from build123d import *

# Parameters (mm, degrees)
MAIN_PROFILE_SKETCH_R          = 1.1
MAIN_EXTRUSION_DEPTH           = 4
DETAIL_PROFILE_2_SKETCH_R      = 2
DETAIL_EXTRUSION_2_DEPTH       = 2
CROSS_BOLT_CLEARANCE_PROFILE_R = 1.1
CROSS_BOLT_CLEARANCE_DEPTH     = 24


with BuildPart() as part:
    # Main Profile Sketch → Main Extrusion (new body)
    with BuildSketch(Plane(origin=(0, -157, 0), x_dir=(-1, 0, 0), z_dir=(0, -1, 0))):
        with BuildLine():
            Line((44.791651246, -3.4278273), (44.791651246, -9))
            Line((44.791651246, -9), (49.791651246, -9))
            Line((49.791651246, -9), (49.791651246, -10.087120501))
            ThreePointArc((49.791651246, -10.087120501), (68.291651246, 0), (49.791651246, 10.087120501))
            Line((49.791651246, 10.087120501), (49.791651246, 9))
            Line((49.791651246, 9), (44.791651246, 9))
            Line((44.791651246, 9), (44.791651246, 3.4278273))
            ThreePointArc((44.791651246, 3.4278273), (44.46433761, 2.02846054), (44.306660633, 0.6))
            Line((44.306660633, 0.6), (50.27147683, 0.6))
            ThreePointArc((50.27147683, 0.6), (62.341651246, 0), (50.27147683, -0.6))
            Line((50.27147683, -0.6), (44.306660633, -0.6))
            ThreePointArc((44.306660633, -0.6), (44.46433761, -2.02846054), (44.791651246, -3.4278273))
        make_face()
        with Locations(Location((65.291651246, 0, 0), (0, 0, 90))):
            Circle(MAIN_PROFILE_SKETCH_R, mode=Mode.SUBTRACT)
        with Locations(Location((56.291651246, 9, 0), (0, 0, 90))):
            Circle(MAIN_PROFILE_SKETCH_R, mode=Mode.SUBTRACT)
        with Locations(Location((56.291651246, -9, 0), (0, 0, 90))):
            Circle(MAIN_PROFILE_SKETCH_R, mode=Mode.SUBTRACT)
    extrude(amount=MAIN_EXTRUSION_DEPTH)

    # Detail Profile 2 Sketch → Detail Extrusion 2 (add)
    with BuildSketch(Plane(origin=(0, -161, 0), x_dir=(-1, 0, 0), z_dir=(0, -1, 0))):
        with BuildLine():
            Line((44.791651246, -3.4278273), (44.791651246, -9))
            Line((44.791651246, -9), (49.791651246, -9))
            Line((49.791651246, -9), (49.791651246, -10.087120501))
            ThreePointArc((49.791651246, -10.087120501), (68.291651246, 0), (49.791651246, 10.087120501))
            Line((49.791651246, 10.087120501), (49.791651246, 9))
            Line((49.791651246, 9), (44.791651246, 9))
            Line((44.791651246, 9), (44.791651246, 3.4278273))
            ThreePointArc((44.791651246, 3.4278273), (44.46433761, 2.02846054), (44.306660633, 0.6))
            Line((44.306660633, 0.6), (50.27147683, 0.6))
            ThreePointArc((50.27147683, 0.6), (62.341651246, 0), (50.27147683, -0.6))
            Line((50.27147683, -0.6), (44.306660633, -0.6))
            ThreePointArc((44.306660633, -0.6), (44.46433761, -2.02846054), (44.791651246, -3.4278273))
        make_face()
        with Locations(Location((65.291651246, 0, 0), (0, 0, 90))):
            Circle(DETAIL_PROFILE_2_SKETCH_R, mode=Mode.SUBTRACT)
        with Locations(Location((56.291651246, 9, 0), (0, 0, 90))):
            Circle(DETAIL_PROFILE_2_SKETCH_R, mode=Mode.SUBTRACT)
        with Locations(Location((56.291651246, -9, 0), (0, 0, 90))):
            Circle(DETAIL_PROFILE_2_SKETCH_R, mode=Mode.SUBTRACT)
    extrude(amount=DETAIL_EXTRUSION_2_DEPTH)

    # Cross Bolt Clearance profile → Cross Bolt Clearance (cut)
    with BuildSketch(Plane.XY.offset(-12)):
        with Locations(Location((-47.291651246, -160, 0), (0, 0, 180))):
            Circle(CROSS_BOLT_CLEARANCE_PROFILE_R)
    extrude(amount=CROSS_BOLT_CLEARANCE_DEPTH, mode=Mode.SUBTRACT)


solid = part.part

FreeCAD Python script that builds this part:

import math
import FreeCAD as App
import Part
import Sketcher
from FreeCAD import Vector
Q = App.Units.Quantity

doc = App.newDocument("Part")
params = doc.addObject("Spreadsheet::Sheet", "Params")
for row, (alias, value) in enumerate([
    ("sketch1_radius", "12 mm"),
    ("sketch1_diameter", "2.2 mm"),
    ("sketch1_width", "5 mm"),
    ("sketch1_radius2", "6.05 mm"),
    ("pad1_length", "4 mm"),
    ("sketch2_diameter", "4 mm"),
    ("sketch2_radius", "12 mm"),
    ("sketch2_width", "5 mm"),
    ("sketch2_radius2", "6.05 mm"),
    ("pad2_length", "2 mm"),
    ("sketch3_diameter", "2.2 mm"),
    ("pocket1_length", "24 mm"),
], start=1):
    params.set(f"A{row}", alias)
    params.set(f"B{row}", "=" + value)
    params.setAlias(f"B{row}", alias)

body = doc.addObject("PartDesign::Body", "Body")

sketch1 = doc.addObject("Sketcher::SketchObject", "Sketch")
body.addObject(sketch1)
sketch1.AttachmentSupport = (doc.XZ_Plane, [""])
sketch1.MapMode = "FlatFace"
sketch1.AttachmentOffset = App.Placement(Vector(0, 0, 157), App.Rotation())
sketch1.addGeometry(Part.LineSegment(Vector(-44.8, 3.4, 0), Vector(-44.8, 9, 0)), False)
sketch1.addGeometry(Part.LineSegment(Vector(-44.8, 9, 0), Vector(-49.8, 9, 0)), False)
sketch1.addGeometry(Part.LineSegment(Vector(-49.8, 9, 0), Vector(-49.8, 10.1, 0)), False)
sketch1.addGeometry(Part.ArcOfCircle(Part.Circle(Vector(-56.3, 0, 0), Vector(0, 0, 1), 12), math.radians(57), math.radians(303)), False)
sketch1.addGeometry(Part.LineSegment(Vector(-49.8, -10.1, 0), Vector(-49.8, -9, 0)), False)
sketch1.addGeometry(Part.LineSegment(Vector(-49.8, -9, 0), Vector(-44.8, -9, 0)), False)
sketch1.addGeometry(Part.LineSegment(Vector(-44.8, -9, 0), Vector(-44.8, -3.4, 0)), False)
sketch1.addGeometry(Part.ArcOfCircle(Part.Circle(Vector(-56.3, 0, 0), Vector(0, 0, 1), 12), math.radians(-16.6), math.radians(-2.87)), False)
sketch1.addGeometry(Part.LineSegment(Vector(-44.3, -0.6, 0), Vector(-50.3, -0.6, 0)), False)
sketch1.addGeometry(Part.ArcOfCircle(Part.Circle(Vector(-56.3, 0, 0), Vector(0, 0, 1), 6), math.radians(6), math.radians(354)), False)
sketch1.addGeometry(Part.LineSegment(Vector(-50.3, 0.6, 0), Vector(-44.3, 0.6, 0)), False)
sketch1.addGeometry(Part.ArcOfCircle(Part.Circle(Vector(-56.3, 0, 0), Vector(0, 0, 1), 12), math.radians(2.87), math.radians(16.6)), False)
sketch1.addGeometry(Part.Circle(Vector(-56.3, 9, 0), Vector(0, 0, 1), 1.1), False)
sketch1.addGeometry(Part.Circle(Vector(-56.3, -9, 0), Vector(0, 0, 1), 1.1), False)
sketch1.addGeometry(Part.Circle(Vector(-65.3, 0, 0), Vector(0, 0, 1), 1.1), False)
sketch1.addConstraint(Sketcher.Constraint("Coincident", 0, 2, 1, 1))
sketch1.addConstraint(Sketcher.Constraint("Coincident", 1, 2, 2, 1))
sketch1.addConstraint(Sketcher.Constraint("Coincident", 2, 2, 3, 1))
sketch1.addConstraint(Sketcher.Constraint("Coincident", 3, 2, 4, 1))
sketch1.addConstraint(Sketcher.Constraint("Coincident", 4, 2, 5, 1))
sketch1.addConstraint(Sketcher.Constraint("Coincident", 5, 2, 6, 1))
sketch1.addConstraint(Sketcher.Constraint("Coincident", 6, 2, 7, 1))
sketch1.addConstraint(Sketcher.Constraint("Coincident", 7, 2, 8, 1))
sketch1.addConstraint(Sketcher.Constraint("Coincident", 8, 2, 9, 2))
sketch1.addConstraint(Sketcher.Constraint("Coincident", 9, 1, 10, 1))
sketch1.addConstraint(Sketcher.Constraint("Coincident", 10, 2, 11, 1))
sketch1.addConstraint(Sketcher.Constraint("Coincident", 11, 2, 0, 1))
sketch1.addConstraint(Sketcher.Constraint("Vertical", 0))
sketch1.addConstraint(Sketcher.Constraint("Horizontal", 1))
sketch1.addConstraint(Sketcher.Constraint("Vertical", 2))
sketch1.addConstraint(Sketcher.Constraint("Vertical", 4))
sketch1.addConstraint(Sketcher.Constraint("Horizontal", 5))
sketch1.addConstraint(Sketcher.Constraint("Vertical", 6))
sketch1.addConstraint(Sketcher.Constraint("Horizontal", 8))
sketch1.addConstraint(Sketcher.Constraint("Horizontal", 10))
sketch1.addConstraint(Sketcher.Constraint("Coincident", 7, 3, 3, 3))
sketch1.addConstraint(Sketcher.Constraint("Coincident", 9, 3, 3, 3))
sketch1.addConstraint(Sketcher.Constraint("Coincident", 11, 3, 3, 3))
sketch1.addConstraint(Sketcher.Constraint("Equal", 3, 7))
sketch1.addConstraint(Sketcher.Constraint("Equal", 7, 11))
sketch1.addConstraint(Sketcher.Constraint("Equal", 12, 13))
sketch1.addConstraint(Sketcher.Constraint("Equal", 13, 14))
sketch1.addConstraint(Sketcher.Constraint("Symmetric", 12, 3, 13, 3, -1))
sketch1.addConstraint(Sketcher.Constraint("Symmetric", 2, 2, 3, 2, -1))
sketch1.addConstraint(Sketcher.Constraint("Symmetric", 0, 2, 5, 2, -1))
sketch1.addConstraint(Sketcher.Constraint("PointOnObject", 14, 3, -1))
sketch1.addConstraint(Sketcher.Constraint("Horizontal", 12, 3, 0, 2))
sketch1.addConstraint(Sketcher.Constraint("Vertical", 11, 3, 12, 3))
sketch1.addConstraint(Sketcher.Constraint("Vertical", 8, 2, 9, 1))
sketch1.addConstraint(Sketcher.Constraint("Radius", 3, Q("12 mm")))
sketch1.addConstraint(Sketcher.Constraint("Diameter", 12, Q("2.2 mm")))
sketch1.addConstraint(Sketcher.Constraint("DistanceX", 1, 2, 1, 1, Q("5 mm")))
sketch1.addConstraint(Sketcher.Constraint("Radius", 9, Q("6.05 mm")))
sketch1.addConstraint(Sketcher.Constraint("DistanceY", -1, 1, 12, 3, Q("9 mm")))
sketch1.addConstraint(Sketcher.Constraint("DistanceX", 14, 3, 3, 3, Q("9 mm")))
sketch1.addConstraint(Sketcher.Constraint("DistanceY", 7, 2, -1, 1, Q("0.6 mm")))
sketch1.addConstraint(Sketcher.Constraint("DistanceX", 12, 3, 0, 2, Q("11.5 mm")))
sketch1.addConstraint(Sketcher.Constraint("DistanceX", 3, 3, -1, 1, Q("56.291651 mm")))
sketch1.setExpression("Constraints[34]", "Params.sketch1_radius")
sketch1.setExpression("Constraints[35]", "Params.sketch1_diameter")
sketch1.setExpression("Constraints[36]", "Params.sketch1_width")
sketch1.setExpression("Constraints[37]", "Params.sketch1_radius2")
pad1 = doc.addObject("PartDesign::Pad", "Pad")
body.addObject(pad1)
pad1.Profile = sketch1
pad1.setExpression("Length", "Params.pad1_length")

sketch2 = doc.addObject("Sketcher::SketchObject", "Sketch001")
body.addObject(sketch2)
sketch2.AttachmentSupport = (doc.XZ_Plane, [""])
sketch2.MapMode = "FlatFace"
sketch2.AttachmentOffset = App.Placement(Vector(0, 0, 161), App.Rotation())
sketch2.addGeometry(Part.LineSegment(Vector(-44.8, 3.4, 0), Vector(-44.8, 9, 0)), False)
sketch2.addGeometry(Part.LineSegment(Vector(-44.8, 9, 0), Vector(-49.8, 9, 0)), False)
sketch2.addGeometry(Part.LineSegment(Vector(-49.8, 9, 0), Vector(-49.8, 10.1, 0)), False)
sketch2.addGeometry(Part.ArcOfCircle(Part.Circle(Vector(-56.3, 0, 0), Vector(0, 0, 1), 12), math.radians(57), math.radians(303)), False)
sketch2.addGeometry(Part.LineSegment(Vector(-49.8, -10.1, 0), Vector(-49.8, -9, 0)), False)
sketch2.addGeometry(Part.LineSegment(Vector(-49.8, -9, 0), Vector(-44.8, -9, 0)), False)
sketch2.addGeometry(Part.LineSegment(Vector(-44.8, -9, 0), Vector(-44.8, -3.4, 0)), False)
sketch2.addGeometry(Part.ArcOfCircle(Part.Circle(Vector(-56.3, 0, 0), Vector(0, 0, 1), 12), math.radians(-16.6), math.radians(-2.87)), False)
sketch2.addGeometry(Part.LineSegment(Vector(-44.3, -0.6, 0), Vector(-50.3, -0.6, 0)), False)
sketch2.addGeometry(Part.ArcOfCircle(Part.Circle(Vector(-56.3, 0, 0), Vector(0, 0, 1), 6), math.radians(6), math.radians(354)), False)
sketch2.addGeometry(Part.LineSegment(Vector(-50.3, 0.6, 0), Vector(-44.3, 0.6, 0)), False)
sketch2.addGeometry(Part.ArcOfCircle(Part.Circle(Vector(-56.3, 0, 0), Vector(0, 0, 1), 12), math.radians(2.87), math.radians(16.6)), False)
sketch2.addGeometry(Part.Circle(Vector(-56.3, 9, 0), Vector(0, 0, 1), 2), False)
sketch2.addGeometry(Part.Circle(Vector(-56.3, -9, 0), Vector(0, 0, 1), 2), False)
sketch2.addGeometry(Part.Circle(Vector(-65.3, 0, 0), Vector(0, 0, 1), 2), False)
sketch2.addConstraint(Sketcher.Constraint("Coincident", 0, 2, 1, 1))
sketch2.addConstraint(Sketcher.Constraint("Coincident", 1, 2, 2, 1))
sketch2.addConstraint(Sketcher.Constraint("Coincident", 2, 2, 3, 1))
sketch2.addConstraint(Sketcher.Constraint("Coincident", 3, 2, 4, 1))
sketch2.addConstraint(Sketcher.Constraint("Coincident", 4, 2, 5, 1))
sketch2.addConstraint(Sketcher.Constraint("Coincident", 5, 2, 6, 1))
sketch2.addConstraint(Sketcher.Constraint("Coincident", 6, 2, 7, 1))
sketch2.addConstraint(Sketcher.Constraint("Coincident", 7, 2, 8, 1))
sketch2.addConstraint(Sketcher.Constraint("Coincident", 8, 2, 9, 2))
sketch2.addConstraint(Sketcher.Constraint("Coincident", 9, 1, 10, 1))
sketch2.addConstraint(Sketcher.Constraint("Coincident", 10, 2, 11, 1))
sketch2.addConstraint(Sketcher.Constraint("Coincident", 11, 2, 0, 1))
sketch2.addConstraint(Sketcher.Constraint("Vertical", 0))
sketch2.addConstraint(Sketcher.Constraint("Horizontal", 1))
sketch2.addConstraint(Sketcher.Constraint("Vertical", 2))
sketch2.addConstraint(Sketcher.Constraint("Vertical", 4))
sketch2.addConstraint(Sketcher.Constraint("Horizontal", 5))
sketch2.addConstraint(Sketcher.Constraint("Vertical", 6))
sketch2.addConstraint(Sketcher.Constraint("Horizontal", 8))
sketch2.addConstraint(Sketcher.Constraint("Horizontal", 10))
sketch2.addConstraint(Sketcher.Constraint("Coincident", 7, 3, 3, 3))
sketch2.addConstraint(Sketcher.Constraint("Coincident", 9, 3, 3, 3))
sketch2.addConstraint(Sketcher.Constraint("Coincident", 11, 3, 3, 3))
sketch2.addConstraint(Sketcher.Constraint("Equal", 3, 7))
sketch2.addConstraint(Sketcher.Constraint("Equal", 7, 11))
sketch2.addConstraint(Sketcher.Constraint("Equal", 12, 13))
sketch2.addConstraint(Sketcher.Constraint("Equal", 13, 14))
sketch2.addConstraint(Sketcher.Constraint("Symmetric", 12, 3, 13, 3, -1))
sketch2.addConstraint(Sketcher.Constraint("Symmetric", 2, 2, 3, 2, -1))
sketch2.addConstraint(Sketcher.Constraint("Symmetric", 0, 2, 5, 2, -1))
sketch2.addConstraint(Sketcher.Constraint("PointOnObject", 14, 3, -1))
sketch2.addConstraint(Sketcher.Constraint("Horizontal", 12, 3, 0, 2))
sketch2.addConstraint(Sketcher.Constraint("Vertical", 11, 3, 12, 3))
sketch2.addConstraint(Sketcher.Constraint("Vertical", 8, 2, 9, 1))
sketch2.addConstraint(Sketcher.Constraint("Diameter", 12, Q("4 mm")))
sketch2.addConstraint(Sketcher.Constraint("Radius", 3, Q("12 mm")))
sketch2.addConstraint(Sketcher.Constraint("DistanceX", 1, 2, 1, 1, Q("5 mm")))
sketch2.addConstraint(Sketcher.Constraint("Radius", 9, Q("6.05 mm")))
sketch2.addConstraint(Sketcher.Constraint("DistanceY", -1, 1, 12, 3, Q("9 mm")))
sketch2.addConstraint(Sketcher.Constraint("DistanceX", 14, 3, 3, 3, Q("9 mm")))
sketch2.addConstraint(Sketcher.Constraint("DistanceY", 7, 2, -1, 1, Q("0.6 mm")))
sketch2.addConstraint(Sketcher.Constraint("DistanceX", 12, 3, 0, 2, Q("11.5 mm")))
sketch2.addConstraint(Sketcher.Constraint("DistanceX", 3, 3, -1, 1, Q("56.291651 mm")))
sketch2.setExpression("Constraints[34]", "Params.sketch2_diameter")
sketch2.setExpression("Constraints[35]", "Params.sketch2_radius")
sketch2.setExpression("Constraints[36]", "Params.sketch2_width")
sketch2.setExpression("Constraints[37]", "Params.sketch2_radius2")
pad2 = doc.addObject("PartDesign::Pad", "Pad001")
body.addObject(pad2)
pad2.Profile = sketch2
pad2.setExpression("Length", "Params.pad2_length")

sketch3 = doc.addObject("Sketcher::SketchObject", "Sketch002")
body.addObject(sketch3)
sketch3.AttachmentSupport = (doc.XY_Plane, [""])
sketch3.MapMode = "FlatFace"
sketch3.AttachmentOffset = App.Placement(Vector(0, 0, -12), App.Rotation())
sketch3.addGeometry(Part.Circle(Vector(-47.3, -160, 0), Vector(0, 0, 1), 1.1), False)
sketch3.addConstraint(Sketcher.Constraint("Diameter", 0, Q("2.2 mm")))
sketch3.addConstraint(Sketcher.Constraint("DistanceY", 0, 3, -1, 1, Q("160 mm")))
sketch3.addConstraint(Sketcher.Constraint("DistanceX", 0, 3, -1, 1, Q("47.291651 mm")))
sketch3.setExpression("Constraints[0]", "Params.sketch3_diameter")
pocket1 = doc.addObject("PartDesign::Pocket", "Pocket")
body.addObject(pocket1)
pocket1.Profile = sketch3
pocket1.setExpression("Length", "Params.pocket1_length")
pocket1.Reversed = True

doc.recompute()
